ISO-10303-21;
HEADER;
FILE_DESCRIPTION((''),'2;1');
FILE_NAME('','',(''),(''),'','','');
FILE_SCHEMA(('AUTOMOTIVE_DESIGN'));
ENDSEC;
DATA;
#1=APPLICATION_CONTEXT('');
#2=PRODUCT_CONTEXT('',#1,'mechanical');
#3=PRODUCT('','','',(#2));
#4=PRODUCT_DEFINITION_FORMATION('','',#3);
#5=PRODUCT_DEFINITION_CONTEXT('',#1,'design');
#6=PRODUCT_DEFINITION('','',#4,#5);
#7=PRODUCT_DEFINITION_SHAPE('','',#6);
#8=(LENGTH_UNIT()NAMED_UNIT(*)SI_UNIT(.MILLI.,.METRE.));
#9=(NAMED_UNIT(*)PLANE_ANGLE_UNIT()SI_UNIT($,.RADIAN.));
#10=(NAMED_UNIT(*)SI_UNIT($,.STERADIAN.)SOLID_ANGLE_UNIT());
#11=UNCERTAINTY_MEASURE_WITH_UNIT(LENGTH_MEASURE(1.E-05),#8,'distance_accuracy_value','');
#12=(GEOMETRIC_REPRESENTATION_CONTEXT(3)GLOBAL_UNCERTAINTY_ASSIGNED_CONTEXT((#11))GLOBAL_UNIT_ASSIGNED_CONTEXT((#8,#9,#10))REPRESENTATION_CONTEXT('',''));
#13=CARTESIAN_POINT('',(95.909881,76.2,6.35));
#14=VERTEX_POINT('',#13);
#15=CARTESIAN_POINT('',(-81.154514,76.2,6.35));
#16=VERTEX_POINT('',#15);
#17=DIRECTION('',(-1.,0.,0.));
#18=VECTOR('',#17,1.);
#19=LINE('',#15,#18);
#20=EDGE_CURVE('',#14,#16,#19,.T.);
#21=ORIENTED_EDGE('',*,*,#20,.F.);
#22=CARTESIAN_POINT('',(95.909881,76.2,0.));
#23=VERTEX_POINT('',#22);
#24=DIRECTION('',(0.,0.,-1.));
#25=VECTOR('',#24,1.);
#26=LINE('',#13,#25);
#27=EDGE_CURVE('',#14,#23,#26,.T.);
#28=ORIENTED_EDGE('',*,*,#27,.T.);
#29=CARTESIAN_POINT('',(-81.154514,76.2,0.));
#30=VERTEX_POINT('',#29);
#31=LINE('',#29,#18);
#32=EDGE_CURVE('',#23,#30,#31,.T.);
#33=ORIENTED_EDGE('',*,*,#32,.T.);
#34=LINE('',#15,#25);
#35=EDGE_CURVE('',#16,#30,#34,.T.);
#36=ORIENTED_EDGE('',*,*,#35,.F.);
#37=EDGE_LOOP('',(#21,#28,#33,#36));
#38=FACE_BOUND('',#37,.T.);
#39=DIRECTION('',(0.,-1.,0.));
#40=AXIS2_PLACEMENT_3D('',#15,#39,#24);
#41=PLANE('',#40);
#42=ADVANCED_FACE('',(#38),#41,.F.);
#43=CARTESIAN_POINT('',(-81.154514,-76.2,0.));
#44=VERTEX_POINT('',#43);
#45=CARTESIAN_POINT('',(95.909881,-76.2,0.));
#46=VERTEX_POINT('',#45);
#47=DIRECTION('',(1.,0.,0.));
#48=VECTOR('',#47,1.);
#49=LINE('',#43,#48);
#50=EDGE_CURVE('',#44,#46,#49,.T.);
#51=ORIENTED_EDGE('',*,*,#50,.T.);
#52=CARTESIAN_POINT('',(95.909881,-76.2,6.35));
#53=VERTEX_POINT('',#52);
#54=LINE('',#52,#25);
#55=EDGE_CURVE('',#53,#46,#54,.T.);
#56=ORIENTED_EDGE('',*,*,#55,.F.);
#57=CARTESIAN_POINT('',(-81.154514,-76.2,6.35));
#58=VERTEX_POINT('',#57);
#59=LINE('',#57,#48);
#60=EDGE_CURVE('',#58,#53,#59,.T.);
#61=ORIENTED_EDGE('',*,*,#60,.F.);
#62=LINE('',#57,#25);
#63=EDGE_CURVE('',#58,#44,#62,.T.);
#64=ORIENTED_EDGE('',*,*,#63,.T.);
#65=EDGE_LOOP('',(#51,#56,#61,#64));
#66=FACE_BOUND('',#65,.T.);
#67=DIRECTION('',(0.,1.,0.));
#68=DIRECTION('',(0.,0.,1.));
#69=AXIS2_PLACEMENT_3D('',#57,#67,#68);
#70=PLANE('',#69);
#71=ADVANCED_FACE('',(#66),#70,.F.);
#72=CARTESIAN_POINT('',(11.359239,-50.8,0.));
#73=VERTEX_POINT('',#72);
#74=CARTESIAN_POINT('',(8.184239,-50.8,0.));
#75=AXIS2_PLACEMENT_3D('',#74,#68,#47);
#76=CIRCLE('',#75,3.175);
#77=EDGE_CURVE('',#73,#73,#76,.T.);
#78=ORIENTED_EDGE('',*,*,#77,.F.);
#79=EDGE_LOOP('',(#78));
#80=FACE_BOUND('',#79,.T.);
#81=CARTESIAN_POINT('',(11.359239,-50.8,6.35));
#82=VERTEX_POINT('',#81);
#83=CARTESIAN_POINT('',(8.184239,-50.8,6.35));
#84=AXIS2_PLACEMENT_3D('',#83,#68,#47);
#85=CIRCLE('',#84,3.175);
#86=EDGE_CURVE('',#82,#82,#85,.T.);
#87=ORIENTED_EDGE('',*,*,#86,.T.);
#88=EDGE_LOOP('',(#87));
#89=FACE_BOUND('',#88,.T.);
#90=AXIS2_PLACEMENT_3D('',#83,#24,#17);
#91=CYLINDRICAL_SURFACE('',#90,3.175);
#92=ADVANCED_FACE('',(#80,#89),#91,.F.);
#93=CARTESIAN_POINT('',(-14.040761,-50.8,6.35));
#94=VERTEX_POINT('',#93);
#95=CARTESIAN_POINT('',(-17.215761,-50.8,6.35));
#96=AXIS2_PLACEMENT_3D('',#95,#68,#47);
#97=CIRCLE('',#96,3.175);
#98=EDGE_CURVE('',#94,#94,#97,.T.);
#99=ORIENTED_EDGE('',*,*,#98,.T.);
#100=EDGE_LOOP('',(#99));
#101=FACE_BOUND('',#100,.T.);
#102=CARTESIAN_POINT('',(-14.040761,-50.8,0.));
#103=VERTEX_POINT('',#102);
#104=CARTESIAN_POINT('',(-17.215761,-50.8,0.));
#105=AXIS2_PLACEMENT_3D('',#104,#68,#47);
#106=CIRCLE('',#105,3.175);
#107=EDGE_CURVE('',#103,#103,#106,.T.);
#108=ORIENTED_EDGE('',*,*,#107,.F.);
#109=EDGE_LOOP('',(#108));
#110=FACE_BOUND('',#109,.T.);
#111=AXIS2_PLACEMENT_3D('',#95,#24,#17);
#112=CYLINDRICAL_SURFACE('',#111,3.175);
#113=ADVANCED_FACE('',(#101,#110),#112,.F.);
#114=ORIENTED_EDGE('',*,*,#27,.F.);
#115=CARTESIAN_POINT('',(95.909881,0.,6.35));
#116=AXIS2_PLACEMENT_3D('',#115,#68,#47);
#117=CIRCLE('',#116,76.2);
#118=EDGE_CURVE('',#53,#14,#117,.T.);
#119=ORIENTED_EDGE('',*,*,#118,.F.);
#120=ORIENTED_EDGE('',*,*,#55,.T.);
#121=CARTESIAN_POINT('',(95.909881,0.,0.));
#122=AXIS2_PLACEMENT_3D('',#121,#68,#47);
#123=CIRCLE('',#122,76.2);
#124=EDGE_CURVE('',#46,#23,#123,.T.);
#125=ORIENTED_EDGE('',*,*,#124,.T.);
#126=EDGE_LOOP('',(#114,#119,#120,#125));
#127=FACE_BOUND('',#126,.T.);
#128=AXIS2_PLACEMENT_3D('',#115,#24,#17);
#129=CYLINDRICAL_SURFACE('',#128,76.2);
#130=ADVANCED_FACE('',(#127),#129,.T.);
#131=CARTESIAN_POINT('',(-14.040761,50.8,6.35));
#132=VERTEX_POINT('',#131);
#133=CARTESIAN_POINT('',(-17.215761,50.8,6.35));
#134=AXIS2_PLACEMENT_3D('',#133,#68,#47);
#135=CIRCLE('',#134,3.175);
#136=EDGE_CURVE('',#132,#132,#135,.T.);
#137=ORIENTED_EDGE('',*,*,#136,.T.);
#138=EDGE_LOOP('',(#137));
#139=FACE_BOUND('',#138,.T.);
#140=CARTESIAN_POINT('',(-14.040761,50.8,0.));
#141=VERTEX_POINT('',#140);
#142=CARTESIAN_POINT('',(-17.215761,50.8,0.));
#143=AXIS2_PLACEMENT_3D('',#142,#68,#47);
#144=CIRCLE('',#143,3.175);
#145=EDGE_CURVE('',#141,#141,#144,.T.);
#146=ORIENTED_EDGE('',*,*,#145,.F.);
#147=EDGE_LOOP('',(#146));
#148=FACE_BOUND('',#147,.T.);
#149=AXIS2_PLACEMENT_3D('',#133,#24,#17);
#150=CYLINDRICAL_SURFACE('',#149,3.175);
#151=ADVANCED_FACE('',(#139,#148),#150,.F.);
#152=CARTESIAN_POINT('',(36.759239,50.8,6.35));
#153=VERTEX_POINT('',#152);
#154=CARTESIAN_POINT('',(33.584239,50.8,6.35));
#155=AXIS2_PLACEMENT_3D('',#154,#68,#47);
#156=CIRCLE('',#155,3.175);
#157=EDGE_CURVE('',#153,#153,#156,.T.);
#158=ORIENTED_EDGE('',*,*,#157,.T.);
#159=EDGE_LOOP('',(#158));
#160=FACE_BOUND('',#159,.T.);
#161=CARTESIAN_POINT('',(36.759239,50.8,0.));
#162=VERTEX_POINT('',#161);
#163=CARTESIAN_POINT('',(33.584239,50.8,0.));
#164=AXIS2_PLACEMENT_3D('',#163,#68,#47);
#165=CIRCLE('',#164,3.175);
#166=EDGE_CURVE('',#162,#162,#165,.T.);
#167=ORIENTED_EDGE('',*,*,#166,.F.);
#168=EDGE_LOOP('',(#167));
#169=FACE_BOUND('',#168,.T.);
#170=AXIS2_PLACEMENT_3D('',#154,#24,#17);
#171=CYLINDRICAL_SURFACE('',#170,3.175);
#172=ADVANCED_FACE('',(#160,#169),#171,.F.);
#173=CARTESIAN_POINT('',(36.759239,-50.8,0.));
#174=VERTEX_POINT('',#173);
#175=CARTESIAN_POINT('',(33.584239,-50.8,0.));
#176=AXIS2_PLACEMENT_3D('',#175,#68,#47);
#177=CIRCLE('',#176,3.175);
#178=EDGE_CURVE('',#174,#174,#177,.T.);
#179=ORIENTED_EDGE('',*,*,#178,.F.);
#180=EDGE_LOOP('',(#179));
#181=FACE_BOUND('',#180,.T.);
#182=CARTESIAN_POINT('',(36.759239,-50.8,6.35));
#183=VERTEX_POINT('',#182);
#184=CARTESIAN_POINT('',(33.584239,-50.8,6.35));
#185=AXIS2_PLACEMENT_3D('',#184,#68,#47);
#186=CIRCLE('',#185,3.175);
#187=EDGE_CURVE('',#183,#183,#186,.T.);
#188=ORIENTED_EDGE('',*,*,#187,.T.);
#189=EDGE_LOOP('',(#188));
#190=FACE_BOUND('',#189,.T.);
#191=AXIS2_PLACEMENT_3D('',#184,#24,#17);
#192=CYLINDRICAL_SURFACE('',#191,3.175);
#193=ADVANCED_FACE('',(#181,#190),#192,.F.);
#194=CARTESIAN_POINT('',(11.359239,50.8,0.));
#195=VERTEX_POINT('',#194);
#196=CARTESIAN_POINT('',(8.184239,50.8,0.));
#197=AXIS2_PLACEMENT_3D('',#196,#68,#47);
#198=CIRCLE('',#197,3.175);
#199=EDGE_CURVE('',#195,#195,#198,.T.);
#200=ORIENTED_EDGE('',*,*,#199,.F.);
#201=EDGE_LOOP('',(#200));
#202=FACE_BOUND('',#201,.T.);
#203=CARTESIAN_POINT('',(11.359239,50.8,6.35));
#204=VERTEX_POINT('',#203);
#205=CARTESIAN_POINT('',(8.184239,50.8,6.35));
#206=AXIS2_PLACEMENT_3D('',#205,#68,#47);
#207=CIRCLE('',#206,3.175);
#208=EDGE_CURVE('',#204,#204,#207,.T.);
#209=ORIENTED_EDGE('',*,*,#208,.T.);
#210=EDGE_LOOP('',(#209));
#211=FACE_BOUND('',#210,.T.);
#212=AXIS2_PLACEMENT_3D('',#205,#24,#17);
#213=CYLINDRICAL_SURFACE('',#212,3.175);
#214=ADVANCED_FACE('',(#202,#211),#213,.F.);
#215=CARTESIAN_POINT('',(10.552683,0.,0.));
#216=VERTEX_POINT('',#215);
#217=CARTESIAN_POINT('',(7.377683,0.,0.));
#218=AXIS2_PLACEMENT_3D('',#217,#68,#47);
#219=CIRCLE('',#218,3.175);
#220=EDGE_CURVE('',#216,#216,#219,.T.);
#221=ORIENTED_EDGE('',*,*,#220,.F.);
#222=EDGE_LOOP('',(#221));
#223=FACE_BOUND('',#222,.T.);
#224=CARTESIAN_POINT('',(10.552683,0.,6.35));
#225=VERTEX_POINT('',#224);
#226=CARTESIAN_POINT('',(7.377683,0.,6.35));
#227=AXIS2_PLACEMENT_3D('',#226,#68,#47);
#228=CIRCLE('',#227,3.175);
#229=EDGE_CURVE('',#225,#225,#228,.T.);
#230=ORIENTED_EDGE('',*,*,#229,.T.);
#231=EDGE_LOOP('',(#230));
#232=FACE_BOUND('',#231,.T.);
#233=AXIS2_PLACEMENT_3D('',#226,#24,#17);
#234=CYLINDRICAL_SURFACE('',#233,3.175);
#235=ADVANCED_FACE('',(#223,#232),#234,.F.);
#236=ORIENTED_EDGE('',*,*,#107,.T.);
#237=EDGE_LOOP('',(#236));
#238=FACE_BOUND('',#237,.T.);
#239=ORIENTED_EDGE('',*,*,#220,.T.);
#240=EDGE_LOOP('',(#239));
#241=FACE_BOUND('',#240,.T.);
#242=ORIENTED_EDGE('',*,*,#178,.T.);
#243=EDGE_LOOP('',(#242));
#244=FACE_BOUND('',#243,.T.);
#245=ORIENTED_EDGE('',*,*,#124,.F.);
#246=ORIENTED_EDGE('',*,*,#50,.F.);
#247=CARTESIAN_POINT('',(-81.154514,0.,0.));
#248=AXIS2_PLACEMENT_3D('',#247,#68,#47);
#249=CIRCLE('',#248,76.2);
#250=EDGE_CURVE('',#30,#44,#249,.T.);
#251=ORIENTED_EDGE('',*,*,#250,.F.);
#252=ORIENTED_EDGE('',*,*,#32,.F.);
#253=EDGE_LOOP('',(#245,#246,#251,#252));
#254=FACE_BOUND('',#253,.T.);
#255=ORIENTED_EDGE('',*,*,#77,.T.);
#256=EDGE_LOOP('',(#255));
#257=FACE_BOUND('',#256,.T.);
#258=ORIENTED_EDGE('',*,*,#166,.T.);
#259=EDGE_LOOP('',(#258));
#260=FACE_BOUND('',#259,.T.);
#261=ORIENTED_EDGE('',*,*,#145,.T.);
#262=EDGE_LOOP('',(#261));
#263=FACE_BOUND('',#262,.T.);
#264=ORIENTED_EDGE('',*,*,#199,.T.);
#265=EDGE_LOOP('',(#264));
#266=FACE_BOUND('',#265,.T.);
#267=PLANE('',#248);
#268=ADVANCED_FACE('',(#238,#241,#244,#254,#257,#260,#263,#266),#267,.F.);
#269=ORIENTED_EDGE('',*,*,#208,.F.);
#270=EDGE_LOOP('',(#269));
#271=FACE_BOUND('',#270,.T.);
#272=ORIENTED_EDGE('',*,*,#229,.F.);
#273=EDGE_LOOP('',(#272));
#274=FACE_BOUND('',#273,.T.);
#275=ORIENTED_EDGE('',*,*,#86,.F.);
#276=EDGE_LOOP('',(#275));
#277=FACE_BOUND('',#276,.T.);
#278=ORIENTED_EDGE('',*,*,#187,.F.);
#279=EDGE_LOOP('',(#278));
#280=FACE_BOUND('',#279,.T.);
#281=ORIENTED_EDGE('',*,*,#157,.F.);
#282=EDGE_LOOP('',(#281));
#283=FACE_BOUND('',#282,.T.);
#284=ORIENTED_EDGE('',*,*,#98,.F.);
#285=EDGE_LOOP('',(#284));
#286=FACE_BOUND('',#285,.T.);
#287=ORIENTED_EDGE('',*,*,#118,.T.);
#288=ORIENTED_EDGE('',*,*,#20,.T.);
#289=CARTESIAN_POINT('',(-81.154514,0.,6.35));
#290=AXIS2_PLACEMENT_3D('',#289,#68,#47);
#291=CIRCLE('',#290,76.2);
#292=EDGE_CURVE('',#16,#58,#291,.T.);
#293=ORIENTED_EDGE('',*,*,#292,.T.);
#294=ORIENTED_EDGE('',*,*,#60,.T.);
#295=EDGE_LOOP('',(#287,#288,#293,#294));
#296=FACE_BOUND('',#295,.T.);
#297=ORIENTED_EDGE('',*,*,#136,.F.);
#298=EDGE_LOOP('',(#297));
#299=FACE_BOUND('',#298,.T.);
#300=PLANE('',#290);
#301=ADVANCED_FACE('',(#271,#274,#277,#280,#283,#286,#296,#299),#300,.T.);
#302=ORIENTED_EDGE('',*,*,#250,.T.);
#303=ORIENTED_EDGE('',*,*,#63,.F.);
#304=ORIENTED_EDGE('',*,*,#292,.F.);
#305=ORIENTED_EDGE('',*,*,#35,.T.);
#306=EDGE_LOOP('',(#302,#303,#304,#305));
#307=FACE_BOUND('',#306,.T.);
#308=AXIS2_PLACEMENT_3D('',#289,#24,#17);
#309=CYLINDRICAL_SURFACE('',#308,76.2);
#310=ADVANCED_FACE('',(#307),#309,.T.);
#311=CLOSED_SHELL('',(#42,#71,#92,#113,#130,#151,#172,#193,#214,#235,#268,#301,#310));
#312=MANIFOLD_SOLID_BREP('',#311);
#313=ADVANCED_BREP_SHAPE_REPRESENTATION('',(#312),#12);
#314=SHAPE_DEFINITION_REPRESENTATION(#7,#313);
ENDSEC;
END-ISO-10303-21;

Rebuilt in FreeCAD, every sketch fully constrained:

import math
import FreeCAD as App
import Part
import Sketcher
from FreeCAD import Vector
Q = App.Units.Quantity

doc = App.newDocument("Part")
body = doc.addObject("PartDesign::Body", "Body")

sketch1 = body.newObject("Sketcher::SketchObject", "Sketch")
sketch1.AttachmentSupport = (doc.getObject("XY_Plane"), [""])
sketch1.MapMode = "FlatFace"
sketch1.addGeometry(Part.LineSegment(Vector(95.9, 76.2, 0), Vector(-81.2, 76.2, 0)), False)
sketch1.addGeometry(Part.ArcOfCircle(Part.Circle(Vector(-81.2, 0, 0), Vector(0, 0, 1), 76.2), math.radians(90), math.radians(270)), False)
sketch1.addGeometry(Part.LineSegment(Vector(-81.2, -76.2, 0), Vector(95.9, -76.2, 0)), False)
sketch1.addGeometry(Part.ArcOfCircle(Part.Circle(Vector(95.9, 0, 0), Vector(0, 0, 1), 76.2), math.radians(-90), math.radians(90)), False)
sketch1.addGeometry(Part.Circle(Vector(33.6, -50.8, 0), Vector(0, 0, 1), 3.2), False)
sketch1.addGeometry(Part.Circle(Vector(8.2, -50.8, 0), Vector(0, 0, 1), 3.2), False)
sketch1.addGeometry(Part.Circle(Vector(-17.2, -50.8, 0), Vector(0, 0, 1), 3.2), False)
sketch1.addGeometry(Part.Circle(Vector(33.6, 50.8, 0), Vector(0, 0, 1), 3.2), False)
sketch1.addGeometry(Part.Circle(Vector(7.4, 0, 0), Vector(0, 0, 1), 3.2), False)
sketch1.addGeometry(Part.Circle(Vector(8.2, 50.8, 0), Vector(0, 0, 1), 3.2), False)
sketch1.addGeometry(Part.Circle(Vector(-17.2, 50.8, 0), Vector(0, 0, 1), 3.2), False)
sketch1.addConstraint(Sketcher.Constraint("Tangent", 0, 2, 1, 1))
sketch1.addConstraint(Sketcher.Constraint("Tangent", 1, 2, 2, 1))
sketch1.addConstraint(Sketcher.Constraint("Tangent", 2, 2, 3, 1))
sketch1.addConstraint(Sketcher.Constraint("Tangent", 3, 2, 0, 1))
sketch1.addConstraint(Sketcher.Constraint("Horizontal", 0))
sketch1.addConstraint(Sketcher.Constraint("Horizontal", 2))
sketch1.addConstraint(Sketcher.Constraint("Equal", 4, 5))
sketch1.addConstraint(Sketcher.Constraint("Equal", 5, 6))
sketch1.addConstraint(Sketcher.Constraint("Equal", 6, 7))
sketch1.addConstraint(Sketcher.Constraint("Equal", 7, 8))
sketch1.addConstraint(Sketcher.Constraint("Equal", 8, 9))
sketch1.addConstraint(Sketcher.Constraint("Equal", 9, 10))
sketch1.addConstraint(Sketcher.Constraint("Symmetric", 4, 3, 7, 3, -1))
sketch1.addConstraint(Sketcher.Constraint("Symmetric", 5, 3, 9, 3, -1))
sketch1.addConstraint(Sketcher.Constraint("Symmetric", 6, 3, 10, 3, -1))
sketch1.addConstraint(Sketcher.Constraint("PointOnObject", 1, 3, -1))
sketch1.addConstraint(Sketcher.Constraint("PointOnObject", 8, 3, -1))
sketch1.addConstraint(Sketcher.Constraint("Horizontal", 4, 3, 5, 3))
sketch1.addConstraint(Sketcher.Constraint("Horizontal", 5, 3, 6, 3))
sketch1.addConstraint(Sketcher.Constraint("Radius", 1, Q("3 in")))
sketch1.addConstraint(Sketcher.Constraint("Diameter", 4, Q("0.25 in")))
sketch1.addConstraint(Sketcher.Constraint("DistanceY", 4, 3, -1, 1, Q("2 in")))
sketch1.addConstraint(Sketcher.Constraint("DistanceX", 5, 3, 4, 3, Q("1 in")))
sketch1.addConstraint(Sketcher.Constraint("DistanceX", 6, 3, 5, 3, Q("1 in")))
sketch1.addConstraint(Sketcher.Constraint("DistanceX", 0, 2, 0, 1, Q("177.064395 mm")))
sketch1.addConstraint(Sketcher.Constraint("DistanceX", -1, 1, 3, 3, Q("95.909881 mm")))
sketch1.addConstraint(Sketcher.Constraint("DistanceX", -1, 1, 4, 3, Q("33.584239 mm")))
sketch1.addConstraint(Sketcher.Constraint("DistanceX", -1, 1, 8, 3, Q("7.377683 mm")))
pad1 = body.newObject("PartDesign::Pad", "Pad")
pad1.Profile = sketch1
pad1.Length = Q("0.25 in")

doc.recompute()
